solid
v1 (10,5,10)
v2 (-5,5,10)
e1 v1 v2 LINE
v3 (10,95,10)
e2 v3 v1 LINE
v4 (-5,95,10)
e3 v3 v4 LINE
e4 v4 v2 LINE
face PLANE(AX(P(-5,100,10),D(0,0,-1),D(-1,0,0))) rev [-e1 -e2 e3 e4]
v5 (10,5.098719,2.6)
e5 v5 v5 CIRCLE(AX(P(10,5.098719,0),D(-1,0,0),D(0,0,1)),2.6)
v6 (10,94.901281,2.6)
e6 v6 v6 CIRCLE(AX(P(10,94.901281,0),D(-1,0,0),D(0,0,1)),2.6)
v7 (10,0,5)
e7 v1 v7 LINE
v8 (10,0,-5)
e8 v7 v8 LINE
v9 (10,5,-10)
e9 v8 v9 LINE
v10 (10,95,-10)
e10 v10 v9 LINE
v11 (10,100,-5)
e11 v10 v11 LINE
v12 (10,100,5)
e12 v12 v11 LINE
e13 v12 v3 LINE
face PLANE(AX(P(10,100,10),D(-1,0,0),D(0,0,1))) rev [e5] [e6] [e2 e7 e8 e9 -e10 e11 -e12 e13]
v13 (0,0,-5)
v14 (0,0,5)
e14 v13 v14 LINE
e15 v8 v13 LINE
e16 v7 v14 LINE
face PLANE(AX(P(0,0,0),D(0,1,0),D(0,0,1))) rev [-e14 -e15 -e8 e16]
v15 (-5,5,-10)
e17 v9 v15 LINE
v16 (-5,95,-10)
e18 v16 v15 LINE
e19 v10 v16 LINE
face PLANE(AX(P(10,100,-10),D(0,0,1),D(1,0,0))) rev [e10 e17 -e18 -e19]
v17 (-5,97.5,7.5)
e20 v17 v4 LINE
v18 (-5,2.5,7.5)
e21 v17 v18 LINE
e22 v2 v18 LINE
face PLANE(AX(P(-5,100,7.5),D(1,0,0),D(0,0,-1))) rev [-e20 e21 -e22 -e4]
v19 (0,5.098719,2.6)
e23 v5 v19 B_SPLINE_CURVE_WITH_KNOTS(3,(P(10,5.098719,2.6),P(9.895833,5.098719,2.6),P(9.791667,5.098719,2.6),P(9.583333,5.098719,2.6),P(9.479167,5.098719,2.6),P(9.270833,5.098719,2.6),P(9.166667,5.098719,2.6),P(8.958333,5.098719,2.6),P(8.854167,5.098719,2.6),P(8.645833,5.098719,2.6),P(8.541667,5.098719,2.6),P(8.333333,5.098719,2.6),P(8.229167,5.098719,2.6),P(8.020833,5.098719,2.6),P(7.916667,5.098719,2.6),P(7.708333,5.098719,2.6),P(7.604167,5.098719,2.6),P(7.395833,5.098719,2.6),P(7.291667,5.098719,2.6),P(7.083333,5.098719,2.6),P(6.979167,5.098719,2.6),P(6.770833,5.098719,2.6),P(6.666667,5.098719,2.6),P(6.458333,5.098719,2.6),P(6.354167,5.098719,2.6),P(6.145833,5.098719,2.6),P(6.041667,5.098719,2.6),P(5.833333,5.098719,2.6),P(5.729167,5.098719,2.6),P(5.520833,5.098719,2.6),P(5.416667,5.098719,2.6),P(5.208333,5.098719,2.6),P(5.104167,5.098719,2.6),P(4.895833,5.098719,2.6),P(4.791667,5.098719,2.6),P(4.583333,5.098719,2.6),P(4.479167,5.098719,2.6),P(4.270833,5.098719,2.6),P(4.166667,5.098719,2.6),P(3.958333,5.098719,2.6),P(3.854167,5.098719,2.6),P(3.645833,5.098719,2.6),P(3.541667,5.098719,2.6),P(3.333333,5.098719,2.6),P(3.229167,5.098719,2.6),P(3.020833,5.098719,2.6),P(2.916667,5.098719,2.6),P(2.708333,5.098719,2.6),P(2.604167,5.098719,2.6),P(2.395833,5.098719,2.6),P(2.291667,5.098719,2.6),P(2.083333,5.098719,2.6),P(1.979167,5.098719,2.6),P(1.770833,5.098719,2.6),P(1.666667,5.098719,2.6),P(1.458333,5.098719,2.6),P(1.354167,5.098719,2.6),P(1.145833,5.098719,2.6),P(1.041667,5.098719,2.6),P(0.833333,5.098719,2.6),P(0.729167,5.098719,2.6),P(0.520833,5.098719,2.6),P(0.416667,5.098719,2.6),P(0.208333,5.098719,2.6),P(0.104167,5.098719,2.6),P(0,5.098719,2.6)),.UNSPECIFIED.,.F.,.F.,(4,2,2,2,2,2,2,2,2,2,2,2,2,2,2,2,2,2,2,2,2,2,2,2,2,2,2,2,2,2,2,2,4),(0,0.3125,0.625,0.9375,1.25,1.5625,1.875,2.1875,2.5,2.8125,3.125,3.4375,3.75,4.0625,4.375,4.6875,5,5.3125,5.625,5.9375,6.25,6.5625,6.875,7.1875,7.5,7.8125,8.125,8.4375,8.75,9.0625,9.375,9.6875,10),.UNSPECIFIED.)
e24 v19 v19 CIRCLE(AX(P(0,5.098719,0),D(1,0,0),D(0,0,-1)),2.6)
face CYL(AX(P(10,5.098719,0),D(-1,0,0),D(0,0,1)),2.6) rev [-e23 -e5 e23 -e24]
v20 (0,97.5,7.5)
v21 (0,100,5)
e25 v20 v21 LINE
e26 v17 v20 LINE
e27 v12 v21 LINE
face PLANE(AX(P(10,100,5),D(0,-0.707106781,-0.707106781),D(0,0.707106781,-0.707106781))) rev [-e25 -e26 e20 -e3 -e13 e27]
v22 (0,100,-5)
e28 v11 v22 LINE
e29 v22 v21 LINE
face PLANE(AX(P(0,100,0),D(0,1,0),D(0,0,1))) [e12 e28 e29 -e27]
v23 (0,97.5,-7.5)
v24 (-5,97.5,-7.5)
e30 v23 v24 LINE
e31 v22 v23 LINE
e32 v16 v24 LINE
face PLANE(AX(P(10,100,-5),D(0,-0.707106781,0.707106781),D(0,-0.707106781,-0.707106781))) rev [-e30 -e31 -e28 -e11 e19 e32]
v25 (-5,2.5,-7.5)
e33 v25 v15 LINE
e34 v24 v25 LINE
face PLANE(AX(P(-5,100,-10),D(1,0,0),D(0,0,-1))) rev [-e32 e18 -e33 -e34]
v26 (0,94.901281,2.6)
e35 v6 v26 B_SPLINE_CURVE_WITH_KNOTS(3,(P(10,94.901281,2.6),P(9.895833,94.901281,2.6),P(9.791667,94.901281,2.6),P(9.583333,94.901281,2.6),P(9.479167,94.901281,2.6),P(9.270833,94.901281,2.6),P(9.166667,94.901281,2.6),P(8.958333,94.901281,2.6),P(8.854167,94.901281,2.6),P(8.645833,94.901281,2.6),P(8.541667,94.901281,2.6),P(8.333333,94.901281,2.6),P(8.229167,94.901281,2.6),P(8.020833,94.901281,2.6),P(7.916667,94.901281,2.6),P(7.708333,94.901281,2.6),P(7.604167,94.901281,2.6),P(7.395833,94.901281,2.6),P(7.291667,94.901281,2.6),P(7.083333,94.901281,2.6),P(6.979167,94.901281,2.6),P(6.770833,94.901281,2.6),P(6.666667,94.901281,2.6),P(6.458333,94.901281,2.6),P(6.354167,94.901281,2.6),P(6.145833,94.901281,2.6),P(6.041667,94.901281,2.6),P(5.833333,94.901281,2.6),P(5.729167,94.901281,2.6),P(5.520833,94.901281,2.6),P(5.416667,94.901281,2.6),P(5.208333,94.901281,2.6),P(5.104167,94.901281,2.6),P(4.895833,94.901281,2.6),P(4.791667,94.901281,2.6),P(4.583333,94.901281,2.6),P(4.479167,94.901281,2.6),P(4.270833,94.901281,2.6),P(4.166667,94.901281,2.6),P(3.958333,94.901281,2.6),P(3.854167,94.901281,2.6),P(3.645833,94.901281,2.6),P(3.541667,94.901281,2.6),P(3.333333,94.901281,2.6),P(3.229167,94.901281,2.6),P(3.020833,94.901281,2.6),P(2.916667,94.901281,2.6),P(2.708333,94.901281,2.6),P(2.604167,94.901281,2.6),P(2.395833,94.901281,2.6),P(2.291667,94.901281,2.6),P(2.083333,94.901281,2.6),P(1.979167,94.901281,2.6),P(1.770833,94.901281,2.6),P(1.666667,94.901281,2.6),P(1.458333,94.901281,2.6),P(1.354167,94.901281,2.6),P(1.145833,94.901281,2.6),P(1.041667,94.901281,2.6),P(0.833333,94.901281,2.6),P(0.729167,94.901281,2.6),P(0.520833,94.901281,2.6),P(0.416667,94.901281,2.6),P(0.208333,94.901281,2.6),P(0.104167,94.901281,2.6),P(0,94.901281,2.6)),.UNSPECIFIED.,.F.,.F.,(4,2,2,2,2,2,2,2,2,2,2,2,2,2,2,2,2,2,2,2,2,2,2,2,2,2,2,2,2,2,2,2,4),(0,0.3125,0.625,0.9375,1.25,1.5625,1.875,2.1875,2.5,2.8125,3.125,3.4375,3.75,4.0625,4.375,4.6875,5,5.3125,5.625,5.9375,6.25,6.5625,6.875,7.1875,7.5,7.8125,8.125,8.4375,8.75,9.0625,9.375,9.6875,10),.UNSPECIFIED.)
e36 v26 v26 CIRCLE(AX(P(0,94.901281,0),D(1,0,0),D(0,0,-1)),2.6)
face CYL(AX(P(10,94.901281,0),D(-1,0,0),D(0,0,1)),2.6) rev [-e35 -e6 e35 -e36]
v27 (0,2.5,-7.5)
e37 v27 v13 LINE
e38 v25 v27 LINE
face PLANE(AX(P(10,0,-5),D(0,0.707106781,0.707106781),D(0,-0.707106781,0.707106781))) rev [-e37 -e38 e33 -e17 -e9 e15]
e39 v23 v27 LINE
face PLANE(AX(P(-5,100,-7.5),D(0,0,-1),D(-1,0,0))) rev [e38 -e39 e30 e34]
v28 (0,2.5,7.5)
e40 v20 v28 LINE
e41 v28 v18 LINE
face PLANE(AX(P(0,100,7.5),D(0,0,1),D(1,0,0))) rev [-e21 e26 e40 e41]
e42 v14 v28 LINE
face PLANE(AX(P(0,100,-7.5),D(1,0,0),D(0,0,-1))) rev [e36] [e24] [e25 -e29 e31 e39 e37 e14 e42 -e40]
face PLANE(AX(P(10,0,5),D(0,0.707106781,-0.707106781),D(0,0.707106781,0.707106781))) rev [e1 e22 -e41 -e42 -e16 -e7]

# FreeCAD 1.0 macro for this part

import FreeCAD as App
import Part
import Sketcher


def add_polygon(sketch, points):
    """Adds a closed chain of lines whose ends are joined by coincident constraints."""
    first, n = sketch.GeometryCount, len(points)
    for a, b in zip(points, points[1:] + points[:1]):
        sketch.addGeometry(Part.LineSegment(App.Vector(*a, 0), App.Vector(*b, 0)), False)
    for i in range(n):
        sketch.addConstraint(Sketcher.Constraint("Coincident", first + i, 2, first + (i + 1) % n, 1))

doc = App.newDocument("Part")
params = doc.addObject("Spreadsheet::Sheet", "Params")
for row, (alias, value) in enumerate([
    ("sketch1_width", "5 mm"),
    ("sketch1_width2", "15 mm"),
    ("sketch1_height", "20 mm"),
    ("pad1_length", "100 mm"),
    ("sketch2_diameter", "5.2 mm"),
    ("sketch2_width", "5 mm"),
], start=1):
    params.set(f"A{row}", alias)
    params.set(f"B{row}", "=" + value)
    params.setAlias(f"B{row}", alias)

body = doc.addObject("PartDesign::Body", "Body")

# Sketch on XZ plane
sketch1 = body.newObject("Sketcher::SketchObject", "Sketch")
sketch1.AttachmentSupport = (doc.getObject("XZ_Plane"), [""])
sketch1.MapMode = "FlatFace"
add_polygon(sketch1, [(-5, -7.5), (0, -7.5), (0, 7.5), (-5, 7.5), (-5, 10), (10, 10), (10, -10), (-5, -10)])  # lines 0-7
sketch1.addConstraint([
    Sketcher.Constraint("Horizontal", 0),
    Sketcher.Constraint("Vertical", 1),
    Sketcher.Constraint("Horizontal", 2),
    Sketcher.Constraint("Vertical", 3),
    Sketcher.Constraint("Horizontal", 4),
    Sketcher.Constraint("Vertical", 5),
    Sketcher.Constraint("Horizontal", 6),
    Sketcher.Constraint("Vertical", 7),
    Sketcher.Constraint("Symmetric", 0, 2, 1, 2, -1, 1),
    Sketcher.Constraint("Symmetric", 3, 2, 6, 2, -1),
    Sketcher.Constraint("Equal", 6, 1),
    Sketcher.Constraint("DistanceX", 0, 1, 0, 2, 5.0),
    Sketcher.Constraint("DistanceX", 4, 1, 4, 2, 15.0),
    Sketcher.Constraint("DistanceY", 5, 2, 5, 1, 20.0),
])
sketch1.setExpression("Constraints[19]", "Params.sketch1_width")
sketch1.setExpression("Constraints[20]", "Params.sketch1_width2")
sketch1.setExpression("Constraints[21]", "Params.sketch1_height")
pad1 = body.newObject("PartDesign::Pad", "Pad")
pad1.Profile = sketch1
pad1.setExpression("Length", "Params.pad1_length")
pad1.Reversed = True

# Sketch on YZ plane
sketch2 = body.newObject("Sketcher::SketchObject", "Sketch001")
sketch2.AttachmentSupport = (doc.getObject("YZ_Plane"), [""])
sketch2.MapMode = "FlatFace"
sketch2.addGeometry(Part.Circle(App.Vector(94.9, 0, 0), App.Vector(0, 0, 1), 2.6), False)  # 0
sketch2.addGeometry(Part.Circle(App.Vector(5.1, 0, 0), App.Vector(0, 0, 1), 2.6), False)  # 1
add_polygon(sketch2, [(95, -10), (100, -5), (100, -10)])  # lines 2-4
add_polygon(sketch2, [(100, 10), (100, 5), (95, 10)])  # lines 5-7
add_polygon(sketch2, [(0, -10), (0, -5), (5, -10)])  # lines 8-10
add_polygon(sketch2, [(0, 10), (5, 10), (0, 5)])  # lines 11-13
sketch2.addConstraint([
    Sketcher.Constraint("Vertical", 3),
    Sketcher.Constraint("Horizontal", 4),
    Sketcher.Constraint("Vertical", 5),
    Sketcher.Constraint("Horizontal", 7),
    Sketcher.Constraint("Vertical", 8),
    Sketcher.Constraint("Horizontal", 10),
    Sketcher.Constraint("Horizontal", 11),
    Sketcher.Constraint("Vertical", 13),
    Sketcher.Constraint("Equal", 0, 1),
    Sketcher.Constraint("Symmetric", 8, 2, 12, 2, -1, 1),
    Sketcher.Constraint("Symmetric", 2, 2, 5, 2, -1),
    Sketcher.Constraint("Symmetric", 4, 2, 6, 2, -1),
    Sketcher.Constraint("Symmetric", 9, 2, 11, 2, -1),
    Sketcher.Constraint("PointOnObject", 0, 3, -1),
    Sketcher.Constraint("PointOnObject", 1, 3, -1),
    Sketcher.Constraint("PointOnObject", 8, 2, -2),
    Sketcher.Constraint("Perpendicular", 2, 6),
    Sketcher.Constraint("Parallel", 6, 9),
    Sketcher.Constraint("Horizontal", 2, 2, 8, 2),
    Sketcher.Constraint("Horizontal", 4, 2, 9, 2),
    Sketcher.Constraint("Diameter", 0, 5.2),
    Sketcher.Constraint("DistanceX", 4, 2, 4, 1, 5.0),
    Sketcher.Constraint("DistanceX", -1, 1, 2, 2, 100.0),
    Sketcher.Constraint("DistanceY", 2, 2, -1, 1, 5.0),
    Sketcher.Constraint("DistanceX", -1, 1, 0, 3, 94.901281),
    Sketcher.Constraint("DistanceX", -1, 1, 1, 3, 5.098719),
])
sketch2.setExpression("Constraints[32]", "Params.sketch2_diameter")
sketch2.setExpression("Constraints[33]", "Params.sketch2_width")
pocket1 = body.newObject("PartDesign::Pocket", "Pocket")
pocket1.Profile = sketch2
pocket1.Type = "ThroughAll"
pocket1.Midplane = True

doc.recompute()
